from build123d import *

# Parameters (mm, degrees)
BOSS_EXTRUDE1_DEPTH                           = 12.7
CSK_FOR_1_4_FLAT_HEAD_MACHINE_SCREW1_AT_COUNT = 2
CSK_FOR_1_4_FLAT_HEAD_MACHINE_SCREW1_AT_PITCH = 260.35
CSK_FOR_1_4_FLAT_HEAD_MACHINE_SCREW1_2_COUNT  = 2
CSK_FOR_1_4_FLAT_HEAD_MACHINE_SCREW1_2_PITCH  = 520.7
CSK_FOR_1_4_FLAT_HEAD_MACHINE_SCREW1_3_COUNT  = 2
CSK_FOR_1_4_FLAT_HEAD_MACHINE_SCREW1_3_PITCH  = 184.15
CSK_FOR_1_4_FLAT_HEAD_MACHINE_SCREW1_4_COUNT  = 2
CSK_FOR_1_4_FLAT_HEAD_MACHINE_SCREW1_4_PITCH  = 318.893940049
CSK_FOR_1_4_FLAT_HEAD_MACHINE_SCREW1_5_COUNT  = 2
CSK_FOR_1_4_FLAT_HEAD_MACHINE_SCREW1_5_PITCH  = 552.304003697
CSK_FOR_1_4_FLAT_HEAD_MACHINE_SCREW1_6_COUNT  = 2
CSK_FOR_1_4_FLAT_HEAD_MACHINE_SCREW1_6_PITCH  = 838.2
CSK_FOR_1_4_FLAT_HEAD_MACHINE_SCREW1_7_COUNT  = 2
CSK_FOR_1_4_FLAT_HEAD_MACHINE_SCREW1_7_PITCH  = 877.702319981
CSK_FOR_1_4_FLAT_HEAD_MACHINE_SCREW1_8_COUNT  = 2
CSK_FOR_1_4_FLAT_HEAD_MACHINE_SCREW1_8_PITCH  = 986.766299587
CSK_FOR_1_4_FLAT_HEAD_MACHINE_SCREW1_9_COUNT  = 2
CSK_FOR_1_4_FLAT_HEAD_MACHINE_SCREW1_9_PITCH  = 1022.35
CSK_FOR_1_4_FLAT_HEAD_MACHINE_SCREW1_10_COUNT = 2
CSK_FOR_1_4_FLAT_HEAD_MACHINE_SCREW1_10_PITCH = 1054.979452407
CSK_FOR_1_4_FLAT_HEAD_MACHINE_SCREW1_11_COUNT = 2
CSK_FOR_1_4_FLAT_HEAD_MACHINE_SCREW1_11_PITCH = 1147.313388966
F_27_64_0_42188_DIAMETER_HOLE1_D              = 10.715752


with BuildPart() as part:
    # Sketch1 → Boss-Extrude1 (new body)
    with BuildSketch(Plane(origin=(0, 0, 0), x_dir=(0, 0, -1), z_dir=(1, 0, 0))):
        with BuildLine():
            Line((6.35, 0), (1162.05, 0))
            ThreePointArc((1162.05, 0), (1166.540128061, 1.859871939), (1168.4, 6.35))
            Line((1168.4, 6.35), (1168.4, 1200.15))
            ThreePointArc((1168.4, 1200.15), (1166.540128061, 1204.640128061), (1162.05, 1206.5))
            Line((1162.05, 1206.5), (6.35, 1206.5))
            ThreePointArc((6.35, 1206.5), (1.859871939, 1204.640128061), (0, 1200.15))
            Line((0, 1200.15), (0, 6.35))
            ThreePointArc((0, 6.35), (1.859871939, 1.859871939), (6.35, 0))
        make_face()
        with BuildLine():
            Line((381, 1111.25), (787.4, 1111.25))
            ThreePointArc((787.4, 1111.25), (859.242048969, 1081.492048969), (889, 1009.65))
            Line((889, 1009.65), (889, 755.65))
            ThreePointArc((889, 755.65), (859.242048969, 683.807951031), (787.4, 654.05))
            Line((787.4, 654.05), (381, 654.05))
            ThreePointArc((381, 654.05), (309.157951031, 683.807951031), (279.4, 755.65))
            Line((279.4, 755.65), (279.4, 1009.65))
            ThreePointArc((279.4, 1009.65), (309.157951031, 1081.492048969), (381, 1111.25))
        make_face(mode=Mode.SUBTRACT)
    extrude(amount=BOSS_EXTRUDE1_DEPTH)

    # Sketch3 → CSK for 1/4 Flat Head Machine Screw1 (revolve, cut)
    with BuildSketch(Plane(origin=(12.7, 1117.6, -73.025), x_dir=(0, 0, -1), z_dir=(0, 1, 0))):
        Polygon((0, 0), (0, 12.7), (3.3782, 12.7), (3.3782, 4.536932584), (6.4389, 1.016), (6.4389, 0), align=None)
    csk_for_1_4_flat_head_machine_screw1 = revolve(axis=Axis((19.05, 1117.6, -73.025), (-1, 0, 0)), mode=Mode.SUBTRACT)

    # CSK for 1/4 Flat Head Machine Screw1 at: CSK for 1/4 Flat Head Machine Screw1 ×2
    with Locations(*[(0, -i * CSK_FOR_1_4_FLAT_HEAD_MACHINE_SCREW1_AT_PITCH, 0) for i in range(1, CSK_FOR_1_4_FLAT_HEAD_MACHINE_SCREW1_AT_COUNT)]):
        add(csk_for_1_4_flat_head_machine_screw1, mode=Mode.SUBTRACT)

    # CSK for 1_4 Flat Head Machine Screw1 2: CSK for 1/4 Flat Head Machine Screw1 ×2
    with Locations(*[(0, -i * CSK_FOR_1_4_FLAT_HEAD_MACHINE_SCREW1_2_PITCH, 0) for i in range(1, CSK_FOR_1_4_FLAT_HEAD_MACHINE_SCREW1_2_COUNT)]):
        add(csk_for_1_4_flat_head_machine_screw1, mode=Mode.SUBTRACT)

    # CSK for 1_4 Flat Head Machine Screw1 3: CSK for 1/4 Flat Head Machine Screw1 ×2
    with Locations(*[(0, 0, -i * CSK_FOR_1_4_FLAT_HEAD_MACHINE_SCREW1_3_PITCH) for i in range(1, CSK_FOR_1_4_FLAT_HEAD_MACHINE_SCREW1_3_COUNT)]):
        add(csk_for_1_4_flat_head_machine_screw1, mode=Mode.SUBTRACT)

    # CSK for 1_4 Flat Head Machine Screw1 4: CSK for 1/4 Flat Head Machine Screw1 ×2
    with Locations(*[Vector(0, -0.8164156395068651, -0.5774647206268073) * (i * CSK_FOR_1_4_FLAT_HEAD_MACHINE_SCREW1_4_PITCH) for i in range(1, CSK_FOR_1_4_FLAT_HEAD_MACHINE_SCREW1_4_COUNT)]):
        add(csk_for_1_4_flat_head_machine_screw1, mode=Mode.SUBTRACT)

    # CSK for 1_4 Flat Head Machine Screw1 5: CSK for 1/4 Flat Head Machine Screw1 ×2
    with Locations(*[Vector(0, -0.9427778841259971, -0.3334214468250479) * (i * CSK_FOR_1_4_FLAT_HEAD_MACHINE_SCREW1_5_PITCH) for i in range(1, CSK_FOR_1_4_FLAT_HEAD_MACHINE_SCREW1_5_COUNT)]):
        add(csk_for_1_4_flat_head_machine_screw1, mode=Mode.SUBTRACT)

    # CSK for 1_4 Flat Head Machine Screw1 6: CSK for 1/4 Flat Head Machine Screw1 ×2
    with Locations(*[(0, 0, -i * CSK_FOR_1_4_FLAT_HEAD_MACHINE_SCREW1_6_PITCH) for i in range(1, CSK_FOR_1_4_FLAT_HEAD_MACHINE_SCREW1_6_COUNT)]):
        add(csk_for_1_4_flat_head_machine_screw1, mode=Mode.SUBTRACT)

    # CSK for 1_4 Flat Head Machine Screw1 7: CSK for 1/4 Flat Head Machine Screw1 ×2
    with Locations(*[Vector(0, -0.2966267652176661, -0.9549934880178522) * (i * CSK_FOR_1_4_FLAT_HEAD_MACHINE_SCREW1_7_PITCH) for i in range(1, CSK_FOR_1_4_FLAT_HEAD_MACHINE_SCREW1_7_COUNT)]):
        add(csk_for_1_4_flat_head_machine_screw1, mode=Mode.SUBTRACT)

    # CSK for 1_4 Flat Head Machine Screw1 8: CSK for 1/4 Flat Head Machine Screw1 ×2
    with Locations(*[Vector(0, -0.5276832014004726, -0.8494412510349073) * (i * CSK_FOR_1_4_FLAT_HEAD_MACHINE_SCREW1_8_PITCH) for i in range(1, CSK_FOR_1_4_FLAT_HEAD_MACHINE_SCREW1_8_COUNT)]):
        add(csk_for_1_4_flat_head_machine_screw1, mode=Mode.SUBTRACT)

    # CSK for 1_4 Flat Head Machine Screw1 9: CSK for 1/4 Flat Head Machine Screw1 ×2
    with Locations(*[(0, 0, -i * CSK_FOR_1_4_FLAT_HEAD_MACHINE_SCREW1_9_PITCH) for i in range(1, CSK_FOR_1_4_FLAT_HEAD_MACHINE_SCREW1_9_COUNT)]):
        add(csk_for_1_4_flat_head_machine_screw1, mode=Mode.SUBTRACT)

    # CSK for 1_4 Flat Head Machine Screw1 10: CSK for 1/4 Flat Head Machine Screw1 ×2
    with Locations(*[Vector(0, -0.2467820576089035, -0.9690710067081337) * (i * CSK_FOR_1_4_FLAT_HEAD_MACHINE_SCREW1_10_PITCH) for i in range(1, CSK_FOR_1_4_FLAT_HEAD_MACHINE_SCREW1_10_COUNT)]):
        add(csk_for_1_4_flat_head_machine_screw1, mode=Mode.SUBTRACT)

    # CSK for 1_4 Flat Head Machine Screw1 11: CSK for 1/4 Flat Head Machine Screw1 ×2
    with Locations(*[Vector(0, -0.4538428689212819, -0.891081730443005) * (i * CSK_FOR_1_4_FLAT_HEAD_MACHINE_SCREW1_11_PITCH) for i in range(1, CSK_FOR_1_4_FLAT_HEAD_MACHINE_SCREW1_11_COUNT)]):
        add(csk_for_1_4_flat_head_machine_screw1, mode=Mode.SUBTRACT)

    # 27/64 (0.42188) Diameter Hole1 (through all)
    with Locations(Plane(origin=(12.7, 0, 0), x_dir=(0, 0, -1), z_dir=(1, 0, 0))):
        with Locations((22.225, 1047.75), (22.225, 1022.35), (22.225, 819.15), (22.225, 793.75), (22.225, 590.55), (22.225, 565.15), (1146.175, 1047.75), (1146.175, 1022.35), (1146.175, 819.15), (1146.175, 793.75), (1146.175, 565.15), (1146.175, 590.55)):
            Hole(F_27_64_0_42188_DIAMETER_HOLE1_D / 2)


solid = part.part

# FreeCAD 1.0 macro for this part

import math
import FreeCAD as App
import Part
import Sketcher

V = App.Vector
Q = App.Units.Quantity


def add_polygon(sketch, points):
    """Adds a closed chain of lines whose ends are joined by coincident constraints."""
    first, n = sketch.GeometryCount, len(points)
    for a, b in zip(points, points[1:] + points[:1]):
        sketch.addGeometry(Part.LineSegment(App.Vector(*a, 0), App.Vector(*b, 0)), False)
    for i in range(n):
        sketch.addConstraint(Sketcher.Constraint("Coincident", first + i, 2, first + (i + 1) % n, 1))

doc = App.newDocument("Part")
body = doc.addObject("PartDesign::Body", "Body")

sketch1 = doc.addObject("Sketcher::SketchObject", "Sketch")
body.addObject(sketch1)
sketch1.AttachmentSupport = (doc.YZ_Plane, [""])
sketch1.MapMode = "FlatFace"
sketch1.addGeometry([
    Part.LineSegment(V(0, -6, 0), V(0, -1162, 0)),
    Part.ArcOfCircle(Part.Circle(V(6, -1162, 0), V(0, 0, 1), 6), math.radians(180), math.radians(270)),
    Part.LineSegment(V(6, -1168, 0), V(1200, -1168, 0)),
    Part.ArcOfCircle(Part.Circle(V(1200, -1162, 0), V(0, 0, 1), 6), math.radians(-90), math.radians(0)),
    Part.LineSegment(V(1206, -1162, 0), V(1206, -6, 0)),
    Part.ArcOfCircle(Part.Circle(V(1200, -6, 0), V(0, 0, 1), 6), math.radians(0), math.radians(90)),
    Part.LineSegment(V(1200, 0, 0), V(6, 0, 0)),
    Part.ArcOfCircle(Part.Circle(V(6, -6, 0), V(0, 0, 1), 6), math.radians(90), math.radians(180)),
    Part.ArcOfCircle(Part.Circle(V(1010, -381, 0), V(0, 0, 1), 102), math.radians(0), math.radians(90)),
    Part.LineSegment(V(1111, -381, 0), V(1111, -787, 0)),
    Part.ArcOfCircle(Part.Circle(V(1010, -787, 0), V(0, 0, 1), 102), math.radians(-90), math.radians(0)),
    Part.LineSegment(V(1010, -889, 0), V(756, -889, 0)),
    Part.ArcOfCircle(Part.Circle(V(756, -787, 0), V(0, 0, 1), 102), math.radians(180), math.radians(270)),
    Part.LineSegment(V(654, -787, 0), V(654, -381, 0)),
    Part.ArcOfCircle(Part.Circle(V(756, -381, 0), V(0, 0, 1), 102), math.radians(90), math.radians(180)),
    Part.LineSegment(V(756, -279, 0), V(1010, -279, 0)),
], False)
sketch1.addConstraint([
    Sketcher.Constraint("Tangent", 0, 2, 1, 1),
    Sketcher.Constraint("Tangent", 1, 2, 2, 1),
    Sketcher.Constraint("Tangent", 2, 2, 3, 1),
    Sketcher.Constraint("Tangent", 3, 2, 4, 1),
    Sketcher.Constraint("Tangent", 4, 2, 5, 1),
    Sketcher.Constraint("Tangent", 5, 2, 6, 1),
    Sketcher.Constraint("Tangent", 6, 2, 7, 1),
    Sketcher.Constraint("Tangent", 7, 2, 0, 1),
    Sketcher.Constraint("Tangent", 8, 1, 9, 1),
    Sketcher.Constraint("Tangent", 9, 2, 10, 2),
    Sketcher.Constraint("Tangent", 10, 1, 11, 1),
    Sketcher.Constraint("Tangent", 11, 2, 12, 2),
    Sketcher.Constraint("Tangent", 12, 1, 13, 1),
    Sketcher.Constraint("Tangent", 13, 2, 14, 2),
    Sketcher.Constraint("Tangent", 14, 1, 15, 1),
    Sketcher.Constraint("Tangent", 15, 2, 8, 2),
    Sketcher.Constraint("Vertical", 0),
    Sketcher.Constraint("Horizontal", 2),
    Sketcher.Constraint("Vertical", 4),
    Sketcher.Constraint("Horizontal", 6),
    Sketcher.Constraint("Vertical", 9),
    Sketcher.Constraint("Horizontal", 11),
    Sketcher.Constraint("Vertical", 13),
    Sketcher.Constraint("Horizontal", 15),
    Sketcher.Constraint("Equal", 1, 3),
    Sketcher.Constraint("Equal", 3, 5),
    Sketcher.Constraint("Equal", 5, 7),
    Sketcher.Constraint("Equal", 8, 10),
    Sketcher.Constraint("Equal", 10, 12),
    Sketcher.Constraint("Equal", 12, 14),
    Sketcher.Constraint("PointOnObject", 0, 2, -2),
    Sketcher.Constraint("PointOnObject", 5, 2, -1),
    Sketcher.Constraint("Radius", 8, Q("4 in")),
    Sketcher.Constraint("DistanceX", 2, 1, 2, 2, Q("47 in")),
    Sketcher.Constraint("DistanceX", 11, 2, 11, 1, Q("10 in")),
    Sketcher.Constraint("DistanceY", 9, 2, 9, 1, Q("16 in")),
    Sketcher.Constraint("Radius", 1, Q("0.25 in")),
    Sketcher.Constraint("DistanceY", 0, 2, 0, 1, Q("45.5 in")),
    Sketcher.Constraint("DistanceY", 8, 3, -1, 1, Q("15 in")),
    Sketcher.Constraint("DistanceX", 8, 3, 5, 3, Q("7.5 in")),
])
pad1 = doc.addObject("PartDesign::Pad", "Pad")
body.addObject(pad1)
pad1.Profile = sketch1
pad1.Length = Q("0.5 in")

sketch2 = doc.addObject("Sketcher::SketchObject", "Sketch001")
body.addObject(sketch2)
sketch2.AttachmentSupport = (doc.XZ_Plane, [""])
sketch2.MapMode = "FlatFace"
sketch2.AttachmentOffset = App.Placement(V(0, 0, -44 * 25.4), App.Rotation())
add_polygon(sketch2, [(0, -73), (12.7, -73), (12.7, -79.5), (11.7, -79.5), (8.2, -76.4), (0, -76.4)])
sketch2.addGeometry(Part.LineSegment(V(12.7, -73, 0), V(0, -73, 0)), True)
sketch2.addConstraint([
    Sketcher.Constraint("Horizontal", 0),
    Sketcher.Constraint("Vertical", 1),
    Sketcher.Constraint("Horizontal", 2),
    Sketcher.Constraint("Horizontal", 4),
    Sketcher.Constraint("Vertical", 5),
    Sketcher.Constraint("Horizontal", 6),
    Sketcher.Constraint("Coincident", 6, 1, 0, 2),
    Sketcher.Constraint("PointOnObject", 4, 2, -2),
    Sketcher.Constraint("PointOnObject", 6, 2, -2),
    Sketcher.Constraint("DistanceX", 0, 1, 0, 2, Q("0.5 in")),
    Sketcher.Constraint("Angle", 3, Q("139 deg")),
    Sketcher.Constraint("DistanceX", 2, 2, 2, 1, Q("0.04 in")),
    Sketcher.Constraint("DistanceY", 5, 1, 5, 2, Q("0.133 in")),
    Sketcher.Constraint("DistanceY", 1, 2, 1, 1, Q("0.2535 in")),
    Sketcher.Constraint("DistanceY", 0, 2, -1, 1, Q("2.875 in")),
])
groove = doc.addObject("PartDesign::Groove", "Groove")
body.addObject(groove)
groove.Profile = sketch2
groove.ReferenceAxis = (sketch2, ["Axis0"])
groove.Angle = 360
doc.recompute()

linearpattern = doc.addObject("PartDesign::LinearPattern", "LinearPattern")
body.addObject(linearpattern)
linearpattern.Originals = [groove]
linearpattern.Direction = (doc.Y_Axis, [""])
linearpattern.Mode = "offset"
linearpattern.Offset = Q("10.25 in")
linearpattern.Occurrences = 2
linearpattern.Reversed = True
body.Tip = linearpattern
doc.recompute()

linearpattern2 = doc.addObject("PartDesign::LinearPattern", "LinearPattern001")
body.addObject(linearpattern2)
linearpattern2.Originals = [groove]
linearpattern2.Direction = (doc.Y_Axis, [""])
linearpattern2.Mode = "offset"
linearpattern2.Offset = Q("20.5 in")
linearpattern2.Occurrences = 2
linearpattern2.Reversed = True
body.Tip = linearpattern2
doc.recompute()

linearpattern3 = doc.addObject("PartDesign::LinearPattern", "LinearPattern002")
body.addObject(linearpattern3)
linearpattern3.Originals = [groove]
linearpattern3.Direction = (doc.Z_Axis, [""])
linearpattern3.Mode = "offset"
linearpattern3.Offset = Q("7.25 in")
linearpattern3.Occurrences = 2
linearpattern3.Reversed = True
body.Tip = linearpattern3
doc.recompute()

datumline = doc.addObject("PartDesign::Line", "DatumLine")
body.addObject(datumline)
datumline.Placement = App.Placement(V(0, 0, 0), App.Rotation(V(0, 0, 1), V(0, -0.81641564, -0.577464721)))
linearpattern4 = doc.addObject("PartDesign::LinearPattern", "LinearPattern003")
body.addObject(linearpattern4)
linearpattern4.Originals = [groove]
linearpattern4.Direction = (datumline, [""])
linearpattern4.Mode = "offset"
linearpattern4.Offset = 318.89394
linearpattern4.Occurrences = 2
body.Tip = linearpattern4
doc.recompute()

datumline2 = doc.addObject("PartDesign::Line", "DatumLine001")
body.addObject(datumline2)
datumline2.Placement = App.Placement(V(0, 0, 0), App.Rotation(V(0, 0, 1), V(0, -0.942777884, -0.333421447)))
linearpattern5 = doc.addObject("PartDesign::LinearPattern", "LinearPattern004")
body.addObject(linearpattern5)
linearpattern5.Originals = [groove]
linearpattern5.Direction = (datumline2, [""])
linearpattern5.Mode = "offset"
linearpattern5.Offset = 552.304004
linearpattern5.Occurrences = 2
body.Tip = linearpattern5
doc.recompute()

linearpattern6 = doc.addObject("PartDesign::LinearPattern", "LinearPattern005")
body.addObject(linearpattern6)
linearpattern6.Originals = [groove]
linearpattern6.Direction = (doc.Z_Axis, [""])
linearpattern6.Mode = "offset"
linearpattern6.Offset = Q("33 in")
linearpattern6.Occurrences = 2
linearpattern6.Reversed = True
body.Tip = linearpattern6
doc.recompute()

datumline3 = doc.addObject("PartDesign::Line", "DatumLine002")
body.addObject(datumline3)
datumline3.Placement = App.Placement(V(0, 0, 0), App.Rotation(V(0, 0, 1), V(0, -0.296626765, -0.954993488)))
linearpattern7 = doc.addObject("PartDesign::LinearPattern", "LinearPattern006")
body.addObject(linearpattern7)
linearpattern7.Originals = [groove]
linearpattern7.Direction = (datumline3, [""])
linearpattern7.Mode = "offset"
linearpattern7.Offset = 877.70232
linearpattern7.Occurrences = 2
body.Tip = linearpattern7
doc.recompute()

datumline4 = doc.addObject("PartDesign::Line", "DatumLine003")
body.addObject(datumline4)
datumline4.Placement = App.Placement(V(0, 0, 0), App.Rotation(V(0, 0, 1), V(0, -0.527683201, -0.849441251)))
linearpattern8 = doc.addObject("PartDesign::LinearPattern", "LinearPattern007")
body.addObject(linearpattern8)
linearpattern8.Originals = [groove]
linearpattern8.Direction = (datumline4, [""])
linearpattern8.Mode = "offset"
linearpattern8.Offset = 986.7663
linearpattern8.Occurrences = 2
body.Tip = linearpattern8
doc.recompute()

linearpattern9 = doc.addObject("PartDesign::LinearPattern", "LinearPattern008")
body.addObject(linearpattern9)
linearpattern9.Originals = [groove]
linearpattern9.Direction = (doc.Z_Axis, [""])
linearpattern9.Mode = "offset"
linearpattern9.Offset = Q("40.25 in")
linearpattern9.Occurrences = 2
linearpattern9.Reversed = True
body.Tip = linearpattern9
doc.recompute()

datumline5 = doc.addObject("PartDesign::Line", "DatumLine004")
body.addObject(datumline5)
datumline5.Placement = App.Placement(V(0, 0, 0), App.Rotation(V(0, 0, 1), V(0, -0.246782058, -0.969071007)))
linearpattern10 = doc.addObject("PartDesign::LinearPattern", "LinearPattern009")
body.addObject(linearpattern10)
linearpattern10.Originals = [groove]
linearpattern10.Direction = (datumline5, [""])
linearpattern10.Mode = "offset"
linearpattern10.Offset = 1054.979452
linearpattern10.Occurrences = 2
body.Tip = linearpattern10
doc.recompute()

datumline6 = doc.addObject("PartDesign::Line", "DatumLine005")
body.addObject(datumline6)
datumline6.Placement = App.Placement(V(0, 0, 0), App.Rotation(V(0, 0, 1), V(0, -0.453842869, -0.89108173)))
linearpattern11 = doc.addObject("PartDesign::LinearPattern", "LinearPattern010")
body.addObject(linearpattern11)
linearpattern11.Originals = [groove]
linearpattern11.Direction = (datumline6, [""])
linearpattern11.Mode = "offset"
linearpattern11.Offset = 1147.313389
linearpattern11.Occurrences = 2
body.Tip = linearpattern11

sketch3 = doc.addObject("Sketcher::SketchObject", "Sketch002")
body.addObject(sketch3)
sketch3.AttachmentSupport = (doc.YZ_Plane, [""])
sketch3.MapMode = "FlatFace"
sketch3.AttachmentOffset = App.Placement(V(0, 0, 0.5 * 25.4), App.Rotation())
sketch3.addGeometry([
    Part.Circle(V(1048, -22, 0), V(0, 0, 1), 5),
    Part.Circle(V(1022, -22, 0), V(0, 0, 1), 5),
    Part.Circle(V(819, -22, 0), V(0, 0, 1), 5),
    Part.Circle(V(794, -22, 0), V(0, 0, 1), 5),
    Part.Circle(V(591, -22, 0), V(0, 0, 1), 5),
    Part.Circle(V(565, -22, 0), V(0, 0, 1), 5),
    Part.Circle(V(1048, -1146, 0), V(0, 0, 1), 5),
    Part.Circle(V(1022, -1146, 0), V(0, 0, 1), 5),
    Part.Circle(V(819, -1146, 0), V(0, 0, 1), 5),
    Part.Circle(V(794, -1146, 0), V(0, 0, 1), 5),
    Part.Circle(V(565, -1146, 0), V(0, 0, 1), 5),
    Part.Circle(V(591, -1146, 0), V(0, 0, 1), 5),
], False)
sketch3.addConstraint([
    Sketcher.Constraint("Equal", 0, 1),
    Sketcher.Constraint("Equal", 1, 2),
    Sketcher.Constraint("Equal", 2, 3),
    Sketcher.Constraint("Equal", 3, 4),
    Sketcher.Constraint("Equal", 4, 5),
    Sketcher.Constraint("Equal", 5, 6),
    Sketcher.Constraint("Equal", 6, 7),
    Sketcher.Constraint("Equal", 7, 8),
    Sketcher.Constraint("Equal", 8, 9),
    Sketcher.Constraint("Equal", 9, 10),
    Sketcher.Constraint("Equal", 10, 11),
    Sketcher.Constraint("Horizontal", 0, 3, 1, 3),
    Sketcher.Constraint("Horizontal", 1, 3, 2, 3),
    Sketcher.Constraint("Horizontal", 2, 3, 3, 3),
    Sketcher.Constraint("Horizontal", 3, 3, 4, 3),
    Sketcher.Constraint("Horizontal", 4, 3, 5, 3),
    Sketcher.Constraint("Horizontal", 6, 3, 7, 3),
    Sketcher.Constraint("Horizontal", 7, 3, 8, 3),
    Sketcher.Constraint("Horizontal", 8, 3, 9, 3),
    Sketcher.Constraint("Horizontal", 9, 3, 10, 3),
    Sketcher.Constraint("Horizontal", 10, 3, 11, 3),
    Sketcher.Constraint("Vertical", 0, 3, 6, 3),
    Sketcher.Constraint("Vertical", 1, 3, 7, 3),
    Sketcher.Constraint("Vertical", 2, 3, 8, 3),
    Sketcher.Constraint("Vertical", 3, 3, 9, 3),
    Sketcher.Constraint("Vertical", 5, 3, 10, 3),
    Sketcher.Constraint("Vertical", 4, 3, 11, 3),
    Sketcher.Constraint("DistanceX", 1, 3, 0, 3, Q("1 in")),
    Sketcher.Constraint("DistanceX", 2, 3, 1, 3, Q("8 in")),
    Sketcher.Constraint("DistanceX", 3, 3, 2, 3, Q("1 in")),
    Sketcher.Constraint("DistanceX", 4, 3, 3, 3, Q("8 in")),
    Sketcher.Constraint("DistanceX", 5, 3, 4, 3, Q("1 in")),
    Sketcher.Constraint("DistanceX", -1, 1, 0, 3, Q("41.25 in")),
    Sketcher.Constraint("DistanceY", 6, 3, 0, 3, Q("44.25 in")),
    Sketcher.Constraint("DistanceY", 0, 3, -1, 1, Q("0.875 in")),
    Sketcher.Constraint("Diameter", 0, Q("10.715752 mm")),
])
doc.recompute()
hole = doc.addObject("PartDesign::Hole", "Hole")
body.addObject(hole)
hole.Profile = sketch3
hole.ThreadType = "None"
hole.Diameter = 10.715752
hole.DepthType = "ThroughAll"

doc.recompute()
